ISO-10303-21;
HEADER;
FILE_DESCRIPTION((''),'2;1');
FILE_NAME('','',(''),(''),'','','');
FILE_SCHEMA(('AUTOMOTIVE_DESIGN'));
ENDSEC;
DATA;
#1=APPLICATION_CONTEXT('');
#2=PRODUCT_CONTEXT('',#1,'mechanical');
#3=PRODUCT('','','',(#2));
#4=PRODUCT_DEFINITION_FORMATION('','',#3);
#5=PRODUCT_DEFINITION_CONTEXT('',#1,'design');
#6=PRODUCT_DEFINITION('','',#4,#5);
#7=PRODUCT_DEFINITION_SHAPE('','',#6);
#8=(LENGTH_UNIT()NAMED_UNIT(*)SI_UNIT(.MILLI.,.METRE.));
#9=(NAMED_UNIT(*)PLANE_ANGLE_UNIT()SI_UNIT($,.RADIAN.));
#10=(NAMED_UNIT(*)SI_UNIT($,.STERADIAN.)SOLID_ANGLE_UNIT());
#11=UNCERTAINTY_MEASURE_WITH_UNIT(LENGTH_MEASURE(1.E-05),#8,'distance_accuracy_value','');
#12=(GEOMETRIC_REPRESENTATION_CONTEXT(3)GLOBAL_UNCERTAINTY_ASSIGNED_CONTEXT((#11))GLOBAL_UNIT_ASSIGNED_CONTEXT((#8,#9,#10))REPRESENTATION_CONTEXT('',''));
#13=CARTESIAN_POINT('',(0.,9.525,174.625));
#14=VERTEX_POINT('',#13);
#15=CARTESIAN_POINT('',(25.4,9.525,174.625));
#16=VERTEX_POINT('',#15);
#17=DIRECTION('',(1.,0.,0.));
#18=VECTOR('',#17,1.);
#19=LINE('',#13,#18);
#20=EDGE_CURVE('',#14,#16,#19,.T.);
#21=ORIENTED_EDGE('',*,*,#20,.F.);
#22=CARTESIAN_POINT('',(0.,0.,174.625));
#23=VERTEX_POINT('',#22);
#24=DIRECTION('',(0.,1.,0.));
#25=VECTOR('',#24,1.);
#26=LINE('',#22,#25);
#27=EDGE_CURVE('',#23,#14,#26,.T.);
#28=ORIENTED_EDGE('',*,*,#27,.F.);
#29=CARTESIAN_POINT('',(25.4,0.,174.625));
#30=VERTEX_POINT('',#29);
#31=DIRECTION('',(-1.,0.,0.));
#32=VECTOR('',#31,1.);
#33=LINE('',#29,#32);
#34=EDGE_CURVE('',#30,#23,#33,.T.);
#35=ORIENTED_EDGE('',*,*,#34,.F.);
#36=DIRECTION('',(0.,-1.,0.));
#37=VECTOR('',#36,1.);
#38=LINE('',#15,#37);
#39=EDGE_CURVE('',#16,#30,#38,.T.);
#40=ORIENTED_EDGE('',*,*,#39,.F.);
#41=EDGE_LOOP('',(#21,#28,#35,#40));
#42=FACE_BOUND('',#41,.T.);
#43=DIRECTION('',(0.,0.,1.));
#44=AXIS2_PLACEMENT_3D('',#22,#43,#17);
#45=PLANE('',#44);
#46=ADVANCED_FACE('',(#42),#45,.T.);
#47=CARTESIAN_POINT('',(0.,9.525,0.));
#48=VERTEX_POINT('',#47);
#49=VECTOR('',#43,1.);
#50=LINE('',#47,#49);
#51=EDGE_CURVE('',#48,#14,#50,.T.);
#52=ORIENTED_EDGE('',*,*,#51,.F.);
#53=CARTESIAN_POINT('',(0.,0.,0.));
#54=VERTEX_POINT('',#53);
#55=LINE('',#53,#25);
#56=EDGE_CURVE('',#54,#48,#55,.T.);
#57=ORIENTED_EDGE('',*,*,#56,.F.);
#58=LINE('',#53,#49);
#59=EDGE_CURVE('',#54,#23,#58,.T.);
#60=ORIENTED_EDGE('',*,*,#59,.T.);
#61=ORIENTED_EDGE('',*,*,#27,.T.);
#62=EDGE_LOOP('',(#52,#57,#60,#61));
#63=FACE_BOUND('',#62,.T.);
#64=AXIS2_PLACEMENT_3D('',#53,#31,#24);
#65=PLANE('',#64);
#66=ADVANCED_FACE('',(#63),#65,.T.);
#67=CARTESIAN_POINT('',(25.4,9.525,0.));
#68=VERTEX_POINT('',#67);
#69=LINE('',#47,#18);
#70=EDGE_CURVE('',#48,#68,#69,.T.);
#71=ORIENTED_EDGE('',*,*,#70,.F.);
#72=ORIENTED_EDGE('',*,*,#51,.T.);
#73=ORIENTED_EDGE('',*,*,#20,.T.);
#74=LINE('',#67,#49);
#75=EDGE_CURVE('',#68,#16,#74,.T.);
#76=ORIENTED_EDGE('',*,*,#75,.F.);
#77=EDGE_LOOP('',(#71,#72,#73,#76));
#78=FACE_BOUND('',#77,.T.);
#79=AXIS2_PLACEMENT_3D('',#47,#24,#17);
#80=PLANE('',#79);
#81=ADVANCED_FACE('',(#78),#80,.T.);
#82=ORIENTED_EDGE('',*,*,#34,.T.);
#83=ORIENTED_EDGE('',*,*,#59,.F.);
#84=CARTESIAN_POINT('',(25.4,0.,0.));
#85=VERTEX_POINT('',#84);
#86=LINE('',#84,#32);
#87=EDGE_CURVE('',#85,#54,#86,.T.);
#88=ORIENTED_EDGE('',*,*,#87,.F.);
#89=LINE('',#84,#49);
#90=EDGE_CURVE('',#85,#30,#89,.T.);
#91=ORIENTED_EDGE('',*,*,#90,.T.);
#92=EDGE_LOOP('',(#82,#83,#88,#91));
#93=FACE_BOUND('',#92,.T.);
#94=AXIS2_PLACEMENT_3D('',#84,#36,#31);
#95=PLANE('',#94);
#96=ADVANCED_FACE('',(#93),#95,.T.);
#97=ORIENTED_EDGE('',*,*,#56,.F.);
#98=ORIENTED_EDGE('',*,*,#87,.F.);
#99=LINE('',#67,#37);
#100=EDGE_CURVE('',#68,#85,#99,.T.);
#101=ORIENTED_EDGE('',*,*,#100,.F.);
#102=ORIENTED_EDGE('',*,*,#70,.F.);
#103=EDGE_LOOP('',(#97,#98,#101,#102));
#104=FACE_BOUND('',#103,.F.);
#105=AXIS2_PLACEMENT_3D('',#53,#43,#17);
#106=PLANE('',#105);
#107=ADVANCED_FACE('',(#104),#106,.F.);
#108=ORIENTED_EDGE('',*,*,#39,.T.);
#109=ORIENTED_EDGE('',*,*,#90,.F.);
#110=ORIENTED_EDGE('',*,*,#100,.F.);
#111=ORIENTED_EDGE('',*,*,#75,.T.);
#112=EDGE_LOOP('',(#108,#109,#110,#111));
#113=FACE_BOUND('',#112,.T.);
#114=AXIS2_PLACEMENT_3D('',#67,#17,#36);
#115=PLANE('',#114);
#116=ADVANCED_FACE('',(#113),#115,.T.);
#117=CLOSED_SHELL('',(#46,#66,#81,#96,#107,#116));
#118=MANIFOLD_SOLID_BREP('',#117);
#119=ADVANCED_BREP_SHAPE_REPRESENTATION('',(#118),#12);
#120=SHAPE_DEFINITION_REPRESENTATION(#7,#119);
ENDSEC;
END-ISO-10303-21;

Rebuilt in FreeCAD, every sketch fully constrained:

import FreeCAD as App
import Part
import Sketcher
from FreeCAD import Vector
Q = App.Units.Quantity

doc = App.newDocument("Part")
body = doc.addObject("PartDesign::Body", "Body")

# Sketch on XY plane
sketch1 = body.newObject("Sketcher::SketchObject", "Sketch")
sketch1.AttachmentSupport = (doc.getObject("XY_Plane"), [""])
sketch1.MapMode = "FlatFace"
sketch1.addGeometry([
    Part.LineSegment(Vector(25, 10, 0), Vector(0, 10, 0)),
    Part.LineSegment(Vector(0, 10, 0), Vector(0, 0, 0)),
    Part.LineSegment(Vector(0, 0, 0), Vector(25, 0, 0)),
    Part.LineSegment(Vector(25, 0, 0), Vector(25, 10, 0)),
], False)
sketch1.addConstraint([
    Sketcher.Constraint("Coincident", 0, 2, 1, 1),
    Sketcher.Constraint("Coincident", 1, 2, 2, 1),
    Sketcher.Constraint("Coincident", 2, 2, 3, 1),
    Sketcher.Constraint("Coincident", 3, 2, 0, 1),
    Sketcher.Constraint("Horizontal", 0),
    Sketcher.Constraint("Vertical", 1),
    Sketcher.Constraint("Horizontal", 2),
    Sketcher.Constraint("Vertical", 3),
    Sketcher.Constraint("Coincident", 1, 2, -1, 1),
    Sketcher.Constraint("DistanceX", 0, 2, 0, 1, Q("1 in")),
    Sketcher.Constraint("DistanceY", 1, 2, 1, 1, Q("0.375 in")),
])
pad1 = body.newObject("PartDesign::Pad", "Pad")
pad1.Profile = sketch1
pad1.Length = Q("6.875 in")

doc.recompute()
